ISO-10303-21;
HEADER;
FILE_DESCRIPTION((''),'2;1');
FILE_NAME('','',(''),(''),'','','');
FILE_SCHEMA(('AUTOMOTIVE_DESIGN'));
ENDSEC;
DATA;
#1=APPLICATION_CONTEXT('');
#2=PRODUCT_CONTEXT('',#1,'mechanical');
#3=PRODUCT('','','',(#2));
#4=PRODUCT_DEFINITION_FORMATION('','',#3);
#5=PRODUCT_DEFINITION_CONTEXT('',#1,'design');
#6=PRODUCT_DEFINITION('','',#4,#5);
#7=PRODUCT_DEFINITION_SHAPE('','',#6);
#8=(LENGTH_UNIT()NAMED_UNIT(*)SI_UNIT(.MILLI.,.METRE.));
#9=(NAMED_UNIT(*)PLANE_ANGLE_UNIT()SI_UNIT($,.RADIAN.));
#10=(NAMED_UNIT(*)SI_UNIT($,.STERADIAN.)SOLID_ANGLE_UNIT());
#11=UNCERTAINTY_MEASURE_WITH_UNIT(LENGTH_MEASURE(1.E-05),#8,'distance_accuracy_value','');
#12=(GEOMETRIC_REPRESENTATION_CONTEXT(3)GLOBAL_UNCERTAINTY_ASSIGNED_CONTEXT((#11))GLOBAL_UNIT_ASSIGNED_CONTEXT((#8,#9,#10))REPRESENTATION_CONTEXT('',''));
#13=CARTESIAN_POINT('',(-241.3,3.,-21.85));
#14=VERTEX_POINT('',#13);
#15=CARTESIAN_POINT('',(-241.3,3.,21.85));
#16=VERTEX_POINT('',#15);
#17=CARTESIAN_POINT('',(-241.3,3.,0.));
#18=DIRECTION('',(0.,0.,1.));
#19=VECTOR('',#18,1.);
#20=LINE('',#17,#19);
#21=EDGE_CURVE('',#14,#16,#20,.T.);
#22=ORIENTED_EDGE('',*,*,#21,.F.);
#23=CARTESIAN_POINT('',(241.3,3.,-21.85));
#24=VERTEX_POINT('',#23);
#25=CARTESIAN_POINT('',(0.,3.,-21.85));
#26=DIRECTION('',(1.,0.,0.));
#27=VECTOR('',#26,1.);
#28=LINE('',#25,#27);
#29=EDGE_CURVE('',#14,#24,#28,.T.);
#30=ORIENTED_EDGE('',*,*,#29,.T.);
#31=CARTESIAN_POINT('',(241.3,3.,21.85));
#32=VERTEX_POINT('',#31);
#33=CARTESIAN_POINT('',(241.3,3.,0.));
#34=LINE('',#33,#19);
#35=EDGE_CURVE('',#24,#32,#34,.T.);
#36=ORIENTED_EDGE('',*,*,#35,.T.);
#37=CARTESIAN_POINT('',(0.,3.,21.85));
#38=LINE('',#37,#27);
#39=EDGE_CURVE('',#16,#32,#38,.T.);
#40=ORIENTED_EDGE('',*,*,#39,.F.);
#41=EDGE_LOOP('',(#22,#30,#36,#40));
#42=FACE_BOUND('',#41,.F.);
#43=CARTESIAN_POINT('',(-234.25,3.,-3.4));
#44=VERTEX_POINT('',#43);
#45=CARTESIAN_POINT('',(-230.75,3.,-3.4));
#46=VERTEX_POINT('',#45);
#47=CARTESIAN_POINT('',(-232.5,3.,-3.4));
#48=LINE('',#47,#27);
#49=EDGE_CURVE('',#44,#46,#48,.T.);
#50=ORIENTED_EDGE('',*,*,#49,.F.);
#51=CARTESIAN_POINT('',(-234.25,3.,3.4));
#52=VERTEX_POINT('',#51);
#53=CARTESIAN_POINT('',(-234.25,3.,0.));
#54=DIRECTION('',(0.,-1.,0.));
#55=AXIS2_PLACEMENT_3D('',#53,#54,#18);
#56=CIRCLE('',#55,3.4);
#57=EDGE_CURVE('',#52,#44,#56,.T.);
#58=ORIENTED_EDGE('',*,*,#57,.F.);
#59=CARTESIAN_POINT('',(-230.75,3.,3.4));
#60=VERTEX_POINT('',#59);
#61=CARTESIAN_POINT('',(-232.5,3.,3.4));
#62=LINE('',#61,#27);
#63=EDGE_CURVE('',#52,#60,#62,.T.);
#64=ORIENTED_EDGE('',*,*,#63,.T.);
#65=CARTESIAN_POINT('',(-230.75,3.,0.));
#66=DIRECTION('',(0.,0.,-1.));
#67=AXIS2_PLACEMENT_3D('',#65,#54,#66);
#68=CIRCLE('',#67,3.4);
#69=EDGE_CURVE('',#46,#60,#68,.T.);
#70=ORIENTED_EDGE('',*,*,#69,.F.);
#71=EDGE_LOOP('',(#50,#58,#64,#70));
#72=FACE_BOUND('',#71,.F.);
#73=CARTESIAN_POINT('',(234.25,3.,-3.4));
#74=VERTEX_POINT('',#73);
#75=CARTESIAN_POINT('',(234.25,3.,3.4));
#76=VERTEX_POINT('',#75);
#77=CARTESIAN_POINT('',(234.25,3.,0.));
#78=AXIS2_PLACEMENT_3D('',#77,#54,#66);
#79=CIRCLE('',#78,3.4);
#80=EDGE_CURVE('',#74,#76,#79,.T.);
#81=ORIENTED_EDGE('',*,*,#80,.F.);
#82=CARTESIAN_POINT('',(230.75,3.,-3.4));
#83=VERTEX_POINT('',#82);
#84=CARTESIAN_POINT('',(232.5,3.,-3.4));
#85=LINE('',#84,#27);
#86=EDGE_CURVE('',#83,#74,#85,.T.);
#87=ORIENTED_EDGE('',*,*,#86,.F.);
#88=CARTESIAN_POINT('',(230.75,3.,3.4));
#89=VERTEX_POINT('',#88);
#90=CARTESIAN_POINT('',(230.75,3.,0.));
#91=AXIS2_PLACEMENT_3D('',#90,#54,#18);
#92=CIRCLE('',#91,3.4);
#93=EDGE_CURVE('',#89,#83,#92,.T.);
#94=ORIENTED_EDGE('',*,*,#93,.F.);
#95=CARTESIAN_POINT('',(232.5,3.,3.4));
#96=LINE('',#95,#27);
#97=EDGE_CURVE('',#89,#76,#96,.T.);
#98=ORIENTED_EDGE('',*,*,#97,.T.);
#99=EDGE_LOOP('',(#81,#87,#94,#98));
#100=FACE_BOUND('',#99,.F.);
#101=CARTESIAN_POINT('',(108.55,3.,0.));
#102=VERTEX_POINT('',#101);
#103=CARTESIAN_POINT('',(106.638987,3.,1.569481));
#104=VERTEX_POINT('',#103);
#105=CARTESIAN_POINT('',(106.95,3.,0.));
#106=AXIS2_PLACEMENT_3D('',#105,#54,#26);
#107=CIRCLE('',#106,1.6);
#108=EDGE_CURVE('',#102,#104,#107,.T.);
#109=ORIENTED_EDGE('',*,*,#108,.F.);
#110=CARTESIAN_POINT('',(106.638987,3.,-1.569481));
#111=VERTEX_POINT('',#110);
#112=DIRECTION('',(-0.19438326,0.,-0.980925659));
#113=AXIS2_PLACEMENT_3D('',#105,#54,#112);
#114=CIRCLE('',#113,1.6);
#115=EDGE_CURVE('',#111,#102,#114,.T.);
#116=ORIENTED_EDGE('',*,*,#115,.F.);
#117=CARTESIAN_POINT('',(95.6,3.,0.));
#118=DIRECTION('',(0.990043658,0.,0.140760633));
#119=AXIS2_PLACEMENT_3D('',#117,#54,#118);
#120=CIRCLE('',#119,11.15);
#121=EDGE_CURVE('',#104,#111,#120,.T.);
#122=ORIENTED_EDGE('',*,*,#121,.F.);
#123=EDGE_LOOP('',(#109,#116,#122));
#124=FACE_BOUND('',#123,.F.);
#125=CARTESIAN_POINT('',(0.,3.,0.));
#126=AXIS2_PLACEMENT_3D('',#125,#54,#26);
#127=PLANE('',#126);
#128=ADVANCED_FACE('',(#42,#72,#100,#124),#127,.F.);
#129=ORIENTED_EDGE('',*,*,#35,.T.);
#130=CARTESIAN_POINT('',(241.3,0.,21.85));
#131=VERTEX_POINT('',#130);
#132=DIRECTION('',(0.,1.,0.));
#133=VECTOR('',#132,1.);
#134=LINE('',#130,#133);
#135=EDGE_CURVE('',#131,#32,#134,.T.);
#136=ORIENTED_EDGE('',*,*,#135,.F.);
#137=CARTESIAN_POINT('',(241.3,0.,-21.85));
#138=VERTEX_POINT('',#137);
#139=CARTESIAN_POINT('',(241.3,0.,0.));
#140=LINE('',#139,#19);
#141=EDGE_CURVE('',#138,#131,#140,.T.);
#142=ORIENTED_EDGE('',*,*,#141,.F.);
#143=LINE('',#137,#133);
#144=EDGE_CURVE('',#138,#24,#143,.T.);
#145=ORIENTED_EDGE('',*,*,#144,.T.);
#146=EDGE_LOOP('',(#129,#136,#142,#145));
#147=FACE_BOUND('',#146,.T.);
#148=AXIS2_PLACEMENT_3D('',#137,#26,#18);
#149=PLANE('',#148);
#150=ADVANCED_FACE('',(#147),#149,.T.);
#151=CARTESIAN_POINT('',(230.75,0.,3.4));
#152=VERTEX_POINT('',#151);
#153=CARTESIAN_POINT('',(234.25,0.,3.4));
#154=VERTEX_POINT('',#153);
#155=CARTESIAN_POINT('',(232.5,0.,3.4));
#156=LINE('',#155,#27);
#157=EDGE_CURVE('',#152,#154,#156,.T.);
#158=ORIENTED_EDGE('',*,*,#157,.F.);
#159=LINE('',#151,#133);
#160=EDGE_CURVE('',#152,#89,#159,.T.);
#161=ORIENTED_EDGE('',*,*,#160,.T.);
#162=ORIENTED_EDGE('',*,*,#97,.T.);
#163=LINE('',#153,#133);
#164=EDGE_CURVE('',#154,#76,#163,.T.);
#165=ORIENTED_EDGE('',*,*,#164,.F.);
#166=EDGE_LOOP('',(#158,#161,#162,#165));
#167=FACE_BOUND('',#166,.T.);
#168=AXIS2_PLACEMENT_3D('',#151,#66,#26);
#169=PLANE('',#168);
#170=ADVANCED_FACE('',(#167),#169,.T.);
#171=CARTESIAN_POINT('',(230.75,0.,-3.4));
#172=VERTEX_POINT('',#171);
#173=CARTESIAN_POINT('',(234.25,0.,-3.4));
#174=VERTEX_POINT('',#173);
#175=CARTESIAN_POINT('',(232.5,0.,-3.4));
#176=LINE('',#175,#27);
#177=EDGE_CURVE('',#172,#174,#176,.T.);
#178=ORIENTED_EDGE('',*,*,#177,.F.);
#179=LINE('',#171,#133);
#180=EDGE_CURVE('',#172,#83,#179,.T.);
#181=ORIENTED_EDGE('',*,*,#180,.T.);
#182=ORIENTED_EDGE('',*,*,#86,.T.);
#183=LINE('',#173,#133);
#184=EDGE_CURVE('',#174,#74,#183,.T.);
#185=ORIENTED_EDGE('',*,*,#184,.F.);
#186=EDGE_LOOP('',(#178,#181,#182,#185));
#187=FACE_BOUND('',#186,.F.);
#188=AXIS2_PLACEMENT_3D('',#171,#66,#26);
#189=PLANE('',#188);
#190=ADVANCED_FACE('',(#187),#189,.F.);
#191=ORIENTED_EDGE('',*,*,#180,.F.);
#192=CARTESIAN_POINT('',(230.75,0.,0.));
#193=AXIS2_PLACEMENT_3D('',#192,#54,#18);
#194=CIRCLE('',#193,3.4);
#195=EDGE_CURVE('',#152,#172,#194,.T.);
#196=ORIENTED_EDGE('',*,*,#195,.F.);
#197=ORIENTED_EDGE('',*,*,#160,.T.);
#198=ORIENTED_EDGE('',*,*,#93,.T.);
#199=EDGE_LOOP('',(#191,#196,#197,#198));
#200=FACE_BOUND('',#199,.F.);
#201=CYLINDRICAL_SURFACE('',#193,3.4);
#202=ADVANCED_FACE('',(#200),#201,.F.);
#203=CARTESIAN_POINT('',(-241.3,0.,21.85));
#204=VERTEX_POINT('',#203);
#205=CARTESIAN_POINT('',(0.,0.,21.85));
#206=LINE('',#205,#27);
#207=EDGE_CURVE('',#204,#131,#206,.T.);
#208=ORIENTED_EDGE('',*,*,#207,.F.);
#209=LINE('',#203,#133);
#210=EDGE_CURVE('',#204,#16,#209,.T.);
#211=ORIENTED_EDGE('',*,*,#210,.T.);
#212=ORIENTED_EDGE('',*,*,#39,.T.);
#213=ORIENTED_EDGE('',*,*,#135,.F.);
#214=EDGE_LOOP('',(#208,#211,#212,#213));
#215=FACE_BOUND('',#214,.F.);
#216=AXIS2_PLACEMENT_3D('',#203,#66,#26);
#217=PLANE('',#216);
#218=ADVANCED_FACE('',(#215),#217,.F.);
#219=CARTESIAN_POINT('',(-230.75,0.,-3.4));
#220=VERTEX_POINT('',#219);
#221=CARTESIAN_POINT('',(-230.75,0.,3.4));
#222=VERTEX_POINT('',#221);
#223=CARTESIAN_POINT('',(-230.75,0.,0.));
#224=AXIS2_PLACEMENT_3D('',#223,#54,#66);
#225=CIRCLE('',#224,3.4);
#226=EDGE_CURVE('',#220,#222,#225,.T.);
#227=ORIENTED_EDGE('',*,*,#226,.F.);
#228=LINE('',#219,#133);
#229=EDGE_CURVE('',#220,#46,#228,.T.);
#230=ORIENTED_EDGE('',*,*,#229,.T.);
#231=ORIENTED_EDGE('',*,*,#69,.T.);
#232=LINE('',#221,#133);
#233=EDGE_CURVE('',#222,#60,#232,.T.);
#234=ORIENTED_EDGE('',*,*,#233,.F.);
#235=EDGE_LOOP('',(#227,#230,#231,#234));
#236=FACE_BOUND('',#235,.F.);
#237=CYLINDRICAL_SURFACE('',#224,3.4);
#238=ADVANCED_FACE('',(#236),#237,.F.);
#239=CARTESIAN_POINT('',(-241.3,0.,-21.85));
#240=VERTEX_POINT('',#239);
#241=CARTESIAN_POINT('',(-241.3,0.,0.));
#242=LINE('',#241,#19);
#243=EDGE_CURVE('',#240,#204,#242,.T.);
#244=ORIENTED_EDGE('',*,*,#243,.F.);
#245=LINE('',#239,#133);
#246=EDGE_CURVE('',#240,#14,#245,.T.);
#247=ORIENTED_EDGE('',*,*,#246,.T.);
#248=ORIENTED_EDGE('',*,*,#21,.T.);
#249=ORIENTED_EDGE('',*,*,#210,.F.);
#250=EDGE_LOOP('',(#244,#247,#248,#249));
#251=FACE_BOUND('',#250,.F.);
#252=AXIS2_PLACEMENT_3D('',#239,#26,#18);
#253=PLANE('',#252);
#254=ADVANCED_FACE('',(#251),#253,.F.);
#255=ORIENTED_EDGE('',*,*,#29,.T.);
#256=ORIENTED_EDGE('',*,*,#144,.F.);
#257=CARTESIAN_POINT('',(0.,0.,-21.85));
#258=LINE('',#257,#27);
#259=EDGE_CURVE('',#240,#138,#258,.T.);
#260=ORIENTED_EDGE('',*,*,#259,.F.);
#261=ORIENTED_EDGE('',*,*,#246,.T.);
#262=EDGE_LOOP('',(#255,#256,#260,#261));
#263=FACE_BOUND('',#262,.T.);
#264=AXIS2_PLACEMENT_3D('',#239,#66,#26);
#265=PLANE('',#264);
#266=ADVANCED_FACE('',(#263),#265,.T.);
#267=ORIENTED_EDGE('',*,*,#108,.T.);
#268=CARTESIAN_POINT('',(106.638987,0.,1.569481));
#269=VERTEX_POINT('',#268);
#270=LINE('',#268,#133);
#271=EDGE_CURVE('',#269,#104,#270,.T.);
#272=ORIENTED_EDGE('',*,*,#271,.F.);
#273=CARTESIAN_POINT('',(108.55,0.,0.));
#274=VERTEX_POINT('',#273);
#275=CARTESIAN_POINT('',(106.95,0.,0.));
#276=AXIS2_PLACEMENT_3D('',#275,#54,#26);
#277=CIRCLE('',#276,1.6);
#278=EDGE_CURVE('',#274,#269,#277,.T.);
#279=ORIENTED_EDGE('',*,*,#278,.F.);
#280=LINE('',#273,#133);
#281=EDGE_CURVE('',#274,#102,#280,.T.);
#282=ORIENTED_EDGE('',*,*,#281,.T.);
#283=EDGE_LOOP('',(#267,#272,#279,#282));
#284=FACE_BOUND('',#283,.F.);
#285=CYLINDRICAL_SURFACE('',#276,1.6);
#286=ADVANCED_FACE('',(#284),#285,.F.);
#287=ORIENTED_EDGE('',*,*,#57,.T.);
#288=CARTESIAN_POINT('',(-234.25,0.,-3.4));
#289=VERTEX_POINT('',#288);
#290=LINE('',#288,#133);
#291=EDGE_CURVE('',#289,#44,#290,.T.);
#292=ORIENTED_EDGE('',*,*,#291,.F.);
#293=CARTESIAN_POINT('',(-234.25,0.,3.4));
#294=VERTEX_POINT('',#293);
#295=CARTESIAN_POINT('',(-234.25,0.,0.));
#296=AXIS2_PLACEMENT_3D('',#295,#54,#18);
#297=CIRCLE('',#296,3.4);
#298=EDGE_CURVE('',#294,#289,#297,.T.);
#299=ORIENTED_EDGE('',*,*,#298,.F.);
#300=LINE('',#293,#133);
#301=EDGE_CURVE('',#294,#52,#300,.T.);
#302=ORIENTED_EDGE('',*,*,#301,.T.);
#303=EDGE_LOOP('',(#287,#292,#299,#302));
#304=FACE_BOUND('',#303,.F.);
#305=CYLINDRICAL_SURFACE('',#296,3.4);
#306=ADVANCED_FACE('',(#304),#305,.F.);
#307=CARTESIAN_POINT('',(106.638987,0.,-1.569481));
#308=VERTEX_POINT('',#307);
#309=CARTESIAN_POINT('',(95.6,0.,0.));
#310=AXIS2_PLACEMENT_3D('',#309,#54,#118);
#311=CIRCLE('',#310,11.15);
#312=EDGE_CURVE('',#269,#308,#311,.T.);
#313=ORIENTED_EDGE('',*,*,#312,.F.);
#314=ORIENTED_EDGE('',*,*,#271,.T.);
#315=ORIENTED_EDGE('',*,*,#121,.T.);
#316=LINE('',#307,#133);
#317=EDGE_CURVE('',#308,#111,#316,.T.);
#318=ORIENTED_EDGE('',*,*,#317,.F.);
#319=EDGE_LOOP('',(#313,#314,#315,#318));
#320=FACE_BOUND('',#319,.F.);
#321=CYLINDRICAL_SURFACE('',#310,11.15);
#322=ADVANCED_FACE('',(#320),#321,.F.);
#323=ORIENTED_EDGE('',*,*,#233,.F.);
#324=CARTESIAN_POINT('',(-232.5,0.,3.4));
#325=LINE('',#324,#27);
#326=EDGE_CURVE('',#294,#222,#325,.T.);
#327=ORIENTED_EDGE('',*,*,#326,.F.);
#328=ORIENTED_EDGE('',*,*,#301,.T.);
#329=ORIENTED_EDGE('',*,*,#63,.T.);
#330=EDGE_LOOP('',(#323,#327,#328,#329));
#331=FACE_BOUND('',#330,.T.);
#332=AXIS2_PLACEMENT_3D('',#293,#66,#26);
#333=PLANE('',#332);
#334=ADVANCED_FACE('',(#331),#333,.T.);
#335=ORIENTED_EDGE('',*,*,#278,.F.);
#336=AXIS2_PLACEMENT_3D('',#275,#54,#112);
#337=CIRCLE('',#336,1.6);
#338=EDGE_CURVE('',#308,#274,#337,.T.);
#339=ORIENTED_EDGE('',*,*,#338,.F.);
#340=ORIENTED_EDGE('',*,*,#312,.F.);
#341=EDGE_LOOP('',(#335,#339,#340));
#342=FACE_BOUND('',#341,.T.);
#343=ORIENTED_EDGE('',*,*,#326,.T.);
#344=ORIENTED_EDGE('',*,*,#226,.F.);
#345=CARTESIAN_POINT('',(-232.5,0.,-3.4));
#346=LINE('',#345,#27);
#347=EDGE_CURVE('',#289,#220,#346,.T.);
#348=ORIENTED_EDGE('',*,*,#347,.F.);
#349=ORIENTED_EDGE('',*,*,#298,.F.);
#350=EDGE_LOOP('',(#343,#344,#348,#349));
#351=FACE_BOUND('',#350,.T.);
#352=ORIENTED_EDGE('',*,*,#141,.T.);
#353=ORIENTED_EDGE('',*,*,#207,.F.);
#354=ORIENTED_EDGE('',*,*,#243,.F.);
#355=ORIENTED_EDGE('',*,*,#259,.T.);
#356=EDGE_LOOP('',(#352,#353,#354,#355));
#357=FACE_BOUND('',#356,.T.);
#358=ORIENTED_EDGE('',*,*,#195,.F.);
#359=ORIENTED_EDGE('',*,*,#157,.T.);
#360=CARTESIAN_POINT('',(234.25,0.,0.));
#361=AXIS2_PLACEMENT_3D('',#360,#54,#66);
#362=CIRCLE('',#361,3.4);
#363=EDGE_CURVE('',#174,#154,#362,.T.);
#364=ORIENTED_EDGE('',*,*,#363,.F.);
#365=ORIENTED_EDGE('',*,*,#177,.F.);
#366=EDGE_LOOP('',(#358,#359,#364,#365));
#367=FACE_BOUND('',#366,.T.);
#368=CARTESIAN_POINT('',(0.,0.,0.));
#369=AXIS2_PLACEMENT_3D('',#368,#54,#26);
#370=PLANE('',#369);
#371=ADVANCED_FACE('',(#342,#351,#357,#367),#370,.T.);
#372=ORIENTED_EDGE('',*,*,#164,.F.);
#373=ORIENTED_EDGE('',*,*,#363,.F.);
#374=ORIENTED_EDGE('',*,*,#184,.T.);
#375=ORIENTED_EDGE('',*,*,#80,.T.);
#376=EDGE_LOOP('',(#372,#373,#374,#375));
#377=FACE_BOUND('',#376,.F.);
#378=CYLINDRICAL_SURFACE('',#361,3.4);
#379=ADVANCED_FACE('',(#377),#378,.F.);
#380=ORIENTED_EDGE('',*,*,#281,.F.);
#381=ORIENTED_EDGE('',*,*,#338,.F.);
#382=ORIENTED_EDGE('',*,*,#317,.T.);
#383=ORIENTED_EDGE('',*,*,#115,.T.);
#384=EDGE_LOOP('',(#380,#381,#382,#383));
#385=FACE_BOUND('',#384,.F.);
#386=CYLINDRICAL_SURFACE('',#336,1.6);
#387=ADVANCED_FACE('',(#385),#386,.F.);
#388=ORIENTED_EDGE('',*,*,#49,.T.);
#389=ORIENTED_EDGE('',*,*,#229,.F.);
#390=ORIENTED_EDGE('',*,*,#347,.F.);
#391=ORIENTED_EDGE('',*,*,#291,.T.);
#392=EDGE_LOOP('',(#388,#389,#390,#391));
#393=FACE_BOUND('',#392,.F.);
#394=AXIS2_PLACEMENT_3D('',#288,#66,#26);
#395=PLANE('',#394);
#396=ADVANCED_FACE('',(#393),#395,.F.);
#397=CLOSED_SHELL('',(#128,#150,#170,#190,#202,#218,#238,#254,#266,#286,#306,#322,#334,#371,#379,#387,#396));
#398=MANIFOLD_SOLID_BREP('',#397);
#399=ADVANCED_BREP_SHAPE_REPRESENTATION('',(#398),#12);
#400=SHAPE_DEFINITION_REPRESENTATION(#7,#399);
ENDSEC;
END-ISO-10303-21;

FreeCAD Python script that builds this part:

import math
import FreeCAD as App
import Part
import Sketcher
Q = App.Units.Quantity

doc = App.newDocument("Part")
params = doc.addObject("Spreadsheet::Sheet", "Params")
for row, (alias, value) in enumerate([
    ("sketch1_width", "482.6 mm"),
    ("sketch1_height", "43.7 mm"),
    ("pad1_length", "3 mm"),
    ("sketch2_radius", "3.4 mm"),
    ("sketch2_width", "3.5 mm"),
    ("pocket1_length", "3 mm"),
    ("sketch3_radius", "1.6 mm"),
    ("sketch3_radius2", "11.15 mm"),
    ("pocket2_length", "3 mm"),
], start=1):
    params.set(f"A{row}", alias)
    params.set(f"B{row}", "=" + value)
    params.setAlias(f"B{row}", alias)

body = doc.addObject("PartDesign::Body", "Body")

# Sketch on XZ plane
sketch1 = body.newObject("Sketcher::SketchObject", "Sketch")
sketch1.AttachmentSupport = (doc.getObject("XZ_Plane"), [""])
sketch1.MapMode = "FlatFace"
sketch1.addGeometry([
    Part.LineSegment(App.Vector(-241, 22, 0), App.Vector(-241, -22, 0)),
    Part.LineSegment(App.Vector(-241, -22, 0), App.Vector(241, -22, 0)),
    Part.LineSegment(App.Vector(241, -22, 0), App.Vector(241, 22, 0)),
    Part.LineSegment(App.Vector(241, 22, 0), App.Vector(-241, 22, 0)),
], False)
sketch1.addConstraint([
    Sketcher.Constraint("Coincident", 0, 2, 1, 1),
    Sketcher.Constraint("Coincident", 1, 2, 2, 1),
    Sketcher.Constraint("Coincident", 2, 2, 3, 1),
    Sketcher.Constraint("Coincident", 3, 2, 0, 1),
    Sketcher.Constraint("Vertical", 0),
    Sketcher.Constraint("Horizontal", 1),
    Sketcher.Constraint("Vertical", 2),
    Sketcher.Constraint("Horizontal", 3),
    Sketcher.Constraint("Symmetric", 0, 2, 2, 2, -1, 1),
    Sketcher.Constraint("DistanceX", 1, 1, 1, 2, Q("482.6 mm")),
    Sketcher.Constraint("DistanceY", 0, 2, 0, 1, Q("43.7 mm")),
])
sketch1.setExpression("Constraints[9]", "Params.sketch1_width")
sketch1.setExpression("Constraints[10]", "Params.sketch1_height")
pad1 = body.newObject("PartDesign::Pad", "Pad")
pad1.Profile = sketch1
pad1.setExpression("Length", "Params.pad1_length")
pad1.Reversed = True

# Sketch on XZ plane
sketch2 = body.newObject("Sketcher::SketchObject", "Sketch001")
sketch2.AttachmentSupport = (doc.getObject("XZ_Plane"), [""])
sketch2.MapMode = "FlatFace"
sketch2.addGeometry([
    Part.LineSegment(App.Vector(-234.2, -3.4, 0), App.Vector(-230.8, -3.4, 0)),  # 0
    Part.ArcOfCircle(Part.Circle(App.Vector(-230.8, 0, 0), App.Vector(0, 0, 1), 3.4), math.radians(-90), math.radians(90)),  # 1
    Part.LineSegment(App.Vector(-230.8, 3.4, 0), App.Vector(-234.2, 3.4, 0)),  # 2
    Part.ArcOfCircle(Part.Circle(App.Vector(-234.2, 0, 0), App.Vector(0, 0, 1), 3.4), math.radians(90), math.radians(270)),  # 3
    Part.LineSegment(App.Vector(230.8, -3.4, 0), App.Vector(234.2, -3.4, 0)),  # 4
    Part.ArcOfCircle(Part.Circle(App.Vector(234.2, 0, 0), App.Vector(0, 0, 1), 3.4), math.radians(-90), math.radians(90)),  # 5
    Part.LineSegment(App.Vector(234.2, 3.4, 0), App.Vector(230.8, 3.4, 0)),  # 6
    Part.ArcOfCircle(Part.Circle(App.Vector(230.8, 0, 0), App.Vector(0, 0, 1), 3.4), math.radians(90), math.radians(270)),  # 7
], False)
sketch2.addConstraint([
    Sketcher.Constraint("Tangent", 0, 2, 1, 1),
    Sketcher.Constraint("Tangent", 1, 2, 2, 1),
    Sketcher.Constraint("Tangent", 2, 2, 3, 1),
    Sketcher.Constraint("Tangent", 3, 2, 0, 1),
    Sketcher.Constraint("Tangent", 4, 2, 5, 1),
    Sketcher.Constraint("Tangent", 5, 2, 6, 1),
    Sketcher.Constraint("Tangent", 6, 2, 7, 1),
    Sketcher.Constraint("Tangent", 7, 2, 4, 1),
    Sketcher.Constraint("Horizontal", 0),
    Sketcher.Constraint("Horizontal", 2),
    Sketcher.Constraint("Horizontal", 4),
    Sketcher.Constraint("Horizontal", 6),
    Sketcher.Constraint("Equal", 3, 5),
    Sketcher.Constraint("Symmetric", 3, 3, 5, 3, -1, 1),
    Sketcher.Constraint("Symmetric", 1, 3, 7, 3, -2),
    Sketcher.Constraint("Radius", 1, Q("3.4 mm")),
    Sketcher.Constraint("DistanceX", 0, 1, 0, 2, Q("3.5 mm")),
    Sketcher.Constraint("DistanceX", 1, 3, 5, 3, Q("465 mm")),
])
sketch2.setExpression("Constraints[15]", "Params.sketch2_radius")
sketch2.setExpression("Constraints[16]", "Params.sketch2_width")
pocket1 = body.newObject("PartDesign::Pocket", "Pocket")
pocket1.Profile = sketch2
pocket1.setExpression("Length", "Params.pocket1_length")

# Sketch on XZ plane
sketch3 = body.newObject("Sketcher::SketchObject", "Sketch002")
sketch3.AttachmentSupport = (doc.getObject("XZ_Plane"), [""])
sketch3.MapMode = "FlatFace"
sketch3.addGeometry([
    Part.ArcOfCircle(Part.Circle(App.Vector(107, 0, 0), App.Vector(0, 0, 1), 1.6), math.radians(-101), math.radians(0)),
    Part.ArcOfCircle(Part.Circle(App.Vector(107, 0, 0), App.Vector(0, 0, 1), 1.6), math.radians(0), math.radians(101)),
    Part.ArcOfCircle(Part.Circle(App.Vector(95.6, 0, 0), App.Vector(0, 0, 1), 11.2), math.radians(8), math.radians(352)),
], False)
sketch3.addConstraint([
    Sketcher.Constraint("Tangent", 0, 2, 1, 1),
    Sketcher.Constraint("Coincident", 1, 2, 2, 1),
    Sketcher.Constraint("Coincident", 2, 2, 0, 1),
    Sketcher.Constraint("Equal", 0, 1),
    Sketcher.Constraint("Symmetric", 1, 2, 2, 2, -1),
    Sketcher.Constraint("PointOnObject", 0, 2, -1),
    Sketcher.Constraint("Radius", 0, Q("1.6 mm")),
    Sketcher.Constraint("Radius", 2, Q("11.15 mm")),
    Sketcher.Constraint("DistanceX", -1, 1, 2, 3, Q("95.6 mm")),
    Sketcher.Constraint("DistanceX", -1, 1, 0, 3, Q("106.95 mm")),
])
sketch3.setExpression("Constraints[6]", "Params.sketch3_radius")
sketch3.setExpression("Constraints[7]", "Params.sketch3_radius2")
pocket2 = body.newObject("PartDesign::Pocket", "Pocket001")
pocket2.Profile = sketch3
pocket2.setExpression("Length", "Params.pocket2_length")

doc.recompute()
